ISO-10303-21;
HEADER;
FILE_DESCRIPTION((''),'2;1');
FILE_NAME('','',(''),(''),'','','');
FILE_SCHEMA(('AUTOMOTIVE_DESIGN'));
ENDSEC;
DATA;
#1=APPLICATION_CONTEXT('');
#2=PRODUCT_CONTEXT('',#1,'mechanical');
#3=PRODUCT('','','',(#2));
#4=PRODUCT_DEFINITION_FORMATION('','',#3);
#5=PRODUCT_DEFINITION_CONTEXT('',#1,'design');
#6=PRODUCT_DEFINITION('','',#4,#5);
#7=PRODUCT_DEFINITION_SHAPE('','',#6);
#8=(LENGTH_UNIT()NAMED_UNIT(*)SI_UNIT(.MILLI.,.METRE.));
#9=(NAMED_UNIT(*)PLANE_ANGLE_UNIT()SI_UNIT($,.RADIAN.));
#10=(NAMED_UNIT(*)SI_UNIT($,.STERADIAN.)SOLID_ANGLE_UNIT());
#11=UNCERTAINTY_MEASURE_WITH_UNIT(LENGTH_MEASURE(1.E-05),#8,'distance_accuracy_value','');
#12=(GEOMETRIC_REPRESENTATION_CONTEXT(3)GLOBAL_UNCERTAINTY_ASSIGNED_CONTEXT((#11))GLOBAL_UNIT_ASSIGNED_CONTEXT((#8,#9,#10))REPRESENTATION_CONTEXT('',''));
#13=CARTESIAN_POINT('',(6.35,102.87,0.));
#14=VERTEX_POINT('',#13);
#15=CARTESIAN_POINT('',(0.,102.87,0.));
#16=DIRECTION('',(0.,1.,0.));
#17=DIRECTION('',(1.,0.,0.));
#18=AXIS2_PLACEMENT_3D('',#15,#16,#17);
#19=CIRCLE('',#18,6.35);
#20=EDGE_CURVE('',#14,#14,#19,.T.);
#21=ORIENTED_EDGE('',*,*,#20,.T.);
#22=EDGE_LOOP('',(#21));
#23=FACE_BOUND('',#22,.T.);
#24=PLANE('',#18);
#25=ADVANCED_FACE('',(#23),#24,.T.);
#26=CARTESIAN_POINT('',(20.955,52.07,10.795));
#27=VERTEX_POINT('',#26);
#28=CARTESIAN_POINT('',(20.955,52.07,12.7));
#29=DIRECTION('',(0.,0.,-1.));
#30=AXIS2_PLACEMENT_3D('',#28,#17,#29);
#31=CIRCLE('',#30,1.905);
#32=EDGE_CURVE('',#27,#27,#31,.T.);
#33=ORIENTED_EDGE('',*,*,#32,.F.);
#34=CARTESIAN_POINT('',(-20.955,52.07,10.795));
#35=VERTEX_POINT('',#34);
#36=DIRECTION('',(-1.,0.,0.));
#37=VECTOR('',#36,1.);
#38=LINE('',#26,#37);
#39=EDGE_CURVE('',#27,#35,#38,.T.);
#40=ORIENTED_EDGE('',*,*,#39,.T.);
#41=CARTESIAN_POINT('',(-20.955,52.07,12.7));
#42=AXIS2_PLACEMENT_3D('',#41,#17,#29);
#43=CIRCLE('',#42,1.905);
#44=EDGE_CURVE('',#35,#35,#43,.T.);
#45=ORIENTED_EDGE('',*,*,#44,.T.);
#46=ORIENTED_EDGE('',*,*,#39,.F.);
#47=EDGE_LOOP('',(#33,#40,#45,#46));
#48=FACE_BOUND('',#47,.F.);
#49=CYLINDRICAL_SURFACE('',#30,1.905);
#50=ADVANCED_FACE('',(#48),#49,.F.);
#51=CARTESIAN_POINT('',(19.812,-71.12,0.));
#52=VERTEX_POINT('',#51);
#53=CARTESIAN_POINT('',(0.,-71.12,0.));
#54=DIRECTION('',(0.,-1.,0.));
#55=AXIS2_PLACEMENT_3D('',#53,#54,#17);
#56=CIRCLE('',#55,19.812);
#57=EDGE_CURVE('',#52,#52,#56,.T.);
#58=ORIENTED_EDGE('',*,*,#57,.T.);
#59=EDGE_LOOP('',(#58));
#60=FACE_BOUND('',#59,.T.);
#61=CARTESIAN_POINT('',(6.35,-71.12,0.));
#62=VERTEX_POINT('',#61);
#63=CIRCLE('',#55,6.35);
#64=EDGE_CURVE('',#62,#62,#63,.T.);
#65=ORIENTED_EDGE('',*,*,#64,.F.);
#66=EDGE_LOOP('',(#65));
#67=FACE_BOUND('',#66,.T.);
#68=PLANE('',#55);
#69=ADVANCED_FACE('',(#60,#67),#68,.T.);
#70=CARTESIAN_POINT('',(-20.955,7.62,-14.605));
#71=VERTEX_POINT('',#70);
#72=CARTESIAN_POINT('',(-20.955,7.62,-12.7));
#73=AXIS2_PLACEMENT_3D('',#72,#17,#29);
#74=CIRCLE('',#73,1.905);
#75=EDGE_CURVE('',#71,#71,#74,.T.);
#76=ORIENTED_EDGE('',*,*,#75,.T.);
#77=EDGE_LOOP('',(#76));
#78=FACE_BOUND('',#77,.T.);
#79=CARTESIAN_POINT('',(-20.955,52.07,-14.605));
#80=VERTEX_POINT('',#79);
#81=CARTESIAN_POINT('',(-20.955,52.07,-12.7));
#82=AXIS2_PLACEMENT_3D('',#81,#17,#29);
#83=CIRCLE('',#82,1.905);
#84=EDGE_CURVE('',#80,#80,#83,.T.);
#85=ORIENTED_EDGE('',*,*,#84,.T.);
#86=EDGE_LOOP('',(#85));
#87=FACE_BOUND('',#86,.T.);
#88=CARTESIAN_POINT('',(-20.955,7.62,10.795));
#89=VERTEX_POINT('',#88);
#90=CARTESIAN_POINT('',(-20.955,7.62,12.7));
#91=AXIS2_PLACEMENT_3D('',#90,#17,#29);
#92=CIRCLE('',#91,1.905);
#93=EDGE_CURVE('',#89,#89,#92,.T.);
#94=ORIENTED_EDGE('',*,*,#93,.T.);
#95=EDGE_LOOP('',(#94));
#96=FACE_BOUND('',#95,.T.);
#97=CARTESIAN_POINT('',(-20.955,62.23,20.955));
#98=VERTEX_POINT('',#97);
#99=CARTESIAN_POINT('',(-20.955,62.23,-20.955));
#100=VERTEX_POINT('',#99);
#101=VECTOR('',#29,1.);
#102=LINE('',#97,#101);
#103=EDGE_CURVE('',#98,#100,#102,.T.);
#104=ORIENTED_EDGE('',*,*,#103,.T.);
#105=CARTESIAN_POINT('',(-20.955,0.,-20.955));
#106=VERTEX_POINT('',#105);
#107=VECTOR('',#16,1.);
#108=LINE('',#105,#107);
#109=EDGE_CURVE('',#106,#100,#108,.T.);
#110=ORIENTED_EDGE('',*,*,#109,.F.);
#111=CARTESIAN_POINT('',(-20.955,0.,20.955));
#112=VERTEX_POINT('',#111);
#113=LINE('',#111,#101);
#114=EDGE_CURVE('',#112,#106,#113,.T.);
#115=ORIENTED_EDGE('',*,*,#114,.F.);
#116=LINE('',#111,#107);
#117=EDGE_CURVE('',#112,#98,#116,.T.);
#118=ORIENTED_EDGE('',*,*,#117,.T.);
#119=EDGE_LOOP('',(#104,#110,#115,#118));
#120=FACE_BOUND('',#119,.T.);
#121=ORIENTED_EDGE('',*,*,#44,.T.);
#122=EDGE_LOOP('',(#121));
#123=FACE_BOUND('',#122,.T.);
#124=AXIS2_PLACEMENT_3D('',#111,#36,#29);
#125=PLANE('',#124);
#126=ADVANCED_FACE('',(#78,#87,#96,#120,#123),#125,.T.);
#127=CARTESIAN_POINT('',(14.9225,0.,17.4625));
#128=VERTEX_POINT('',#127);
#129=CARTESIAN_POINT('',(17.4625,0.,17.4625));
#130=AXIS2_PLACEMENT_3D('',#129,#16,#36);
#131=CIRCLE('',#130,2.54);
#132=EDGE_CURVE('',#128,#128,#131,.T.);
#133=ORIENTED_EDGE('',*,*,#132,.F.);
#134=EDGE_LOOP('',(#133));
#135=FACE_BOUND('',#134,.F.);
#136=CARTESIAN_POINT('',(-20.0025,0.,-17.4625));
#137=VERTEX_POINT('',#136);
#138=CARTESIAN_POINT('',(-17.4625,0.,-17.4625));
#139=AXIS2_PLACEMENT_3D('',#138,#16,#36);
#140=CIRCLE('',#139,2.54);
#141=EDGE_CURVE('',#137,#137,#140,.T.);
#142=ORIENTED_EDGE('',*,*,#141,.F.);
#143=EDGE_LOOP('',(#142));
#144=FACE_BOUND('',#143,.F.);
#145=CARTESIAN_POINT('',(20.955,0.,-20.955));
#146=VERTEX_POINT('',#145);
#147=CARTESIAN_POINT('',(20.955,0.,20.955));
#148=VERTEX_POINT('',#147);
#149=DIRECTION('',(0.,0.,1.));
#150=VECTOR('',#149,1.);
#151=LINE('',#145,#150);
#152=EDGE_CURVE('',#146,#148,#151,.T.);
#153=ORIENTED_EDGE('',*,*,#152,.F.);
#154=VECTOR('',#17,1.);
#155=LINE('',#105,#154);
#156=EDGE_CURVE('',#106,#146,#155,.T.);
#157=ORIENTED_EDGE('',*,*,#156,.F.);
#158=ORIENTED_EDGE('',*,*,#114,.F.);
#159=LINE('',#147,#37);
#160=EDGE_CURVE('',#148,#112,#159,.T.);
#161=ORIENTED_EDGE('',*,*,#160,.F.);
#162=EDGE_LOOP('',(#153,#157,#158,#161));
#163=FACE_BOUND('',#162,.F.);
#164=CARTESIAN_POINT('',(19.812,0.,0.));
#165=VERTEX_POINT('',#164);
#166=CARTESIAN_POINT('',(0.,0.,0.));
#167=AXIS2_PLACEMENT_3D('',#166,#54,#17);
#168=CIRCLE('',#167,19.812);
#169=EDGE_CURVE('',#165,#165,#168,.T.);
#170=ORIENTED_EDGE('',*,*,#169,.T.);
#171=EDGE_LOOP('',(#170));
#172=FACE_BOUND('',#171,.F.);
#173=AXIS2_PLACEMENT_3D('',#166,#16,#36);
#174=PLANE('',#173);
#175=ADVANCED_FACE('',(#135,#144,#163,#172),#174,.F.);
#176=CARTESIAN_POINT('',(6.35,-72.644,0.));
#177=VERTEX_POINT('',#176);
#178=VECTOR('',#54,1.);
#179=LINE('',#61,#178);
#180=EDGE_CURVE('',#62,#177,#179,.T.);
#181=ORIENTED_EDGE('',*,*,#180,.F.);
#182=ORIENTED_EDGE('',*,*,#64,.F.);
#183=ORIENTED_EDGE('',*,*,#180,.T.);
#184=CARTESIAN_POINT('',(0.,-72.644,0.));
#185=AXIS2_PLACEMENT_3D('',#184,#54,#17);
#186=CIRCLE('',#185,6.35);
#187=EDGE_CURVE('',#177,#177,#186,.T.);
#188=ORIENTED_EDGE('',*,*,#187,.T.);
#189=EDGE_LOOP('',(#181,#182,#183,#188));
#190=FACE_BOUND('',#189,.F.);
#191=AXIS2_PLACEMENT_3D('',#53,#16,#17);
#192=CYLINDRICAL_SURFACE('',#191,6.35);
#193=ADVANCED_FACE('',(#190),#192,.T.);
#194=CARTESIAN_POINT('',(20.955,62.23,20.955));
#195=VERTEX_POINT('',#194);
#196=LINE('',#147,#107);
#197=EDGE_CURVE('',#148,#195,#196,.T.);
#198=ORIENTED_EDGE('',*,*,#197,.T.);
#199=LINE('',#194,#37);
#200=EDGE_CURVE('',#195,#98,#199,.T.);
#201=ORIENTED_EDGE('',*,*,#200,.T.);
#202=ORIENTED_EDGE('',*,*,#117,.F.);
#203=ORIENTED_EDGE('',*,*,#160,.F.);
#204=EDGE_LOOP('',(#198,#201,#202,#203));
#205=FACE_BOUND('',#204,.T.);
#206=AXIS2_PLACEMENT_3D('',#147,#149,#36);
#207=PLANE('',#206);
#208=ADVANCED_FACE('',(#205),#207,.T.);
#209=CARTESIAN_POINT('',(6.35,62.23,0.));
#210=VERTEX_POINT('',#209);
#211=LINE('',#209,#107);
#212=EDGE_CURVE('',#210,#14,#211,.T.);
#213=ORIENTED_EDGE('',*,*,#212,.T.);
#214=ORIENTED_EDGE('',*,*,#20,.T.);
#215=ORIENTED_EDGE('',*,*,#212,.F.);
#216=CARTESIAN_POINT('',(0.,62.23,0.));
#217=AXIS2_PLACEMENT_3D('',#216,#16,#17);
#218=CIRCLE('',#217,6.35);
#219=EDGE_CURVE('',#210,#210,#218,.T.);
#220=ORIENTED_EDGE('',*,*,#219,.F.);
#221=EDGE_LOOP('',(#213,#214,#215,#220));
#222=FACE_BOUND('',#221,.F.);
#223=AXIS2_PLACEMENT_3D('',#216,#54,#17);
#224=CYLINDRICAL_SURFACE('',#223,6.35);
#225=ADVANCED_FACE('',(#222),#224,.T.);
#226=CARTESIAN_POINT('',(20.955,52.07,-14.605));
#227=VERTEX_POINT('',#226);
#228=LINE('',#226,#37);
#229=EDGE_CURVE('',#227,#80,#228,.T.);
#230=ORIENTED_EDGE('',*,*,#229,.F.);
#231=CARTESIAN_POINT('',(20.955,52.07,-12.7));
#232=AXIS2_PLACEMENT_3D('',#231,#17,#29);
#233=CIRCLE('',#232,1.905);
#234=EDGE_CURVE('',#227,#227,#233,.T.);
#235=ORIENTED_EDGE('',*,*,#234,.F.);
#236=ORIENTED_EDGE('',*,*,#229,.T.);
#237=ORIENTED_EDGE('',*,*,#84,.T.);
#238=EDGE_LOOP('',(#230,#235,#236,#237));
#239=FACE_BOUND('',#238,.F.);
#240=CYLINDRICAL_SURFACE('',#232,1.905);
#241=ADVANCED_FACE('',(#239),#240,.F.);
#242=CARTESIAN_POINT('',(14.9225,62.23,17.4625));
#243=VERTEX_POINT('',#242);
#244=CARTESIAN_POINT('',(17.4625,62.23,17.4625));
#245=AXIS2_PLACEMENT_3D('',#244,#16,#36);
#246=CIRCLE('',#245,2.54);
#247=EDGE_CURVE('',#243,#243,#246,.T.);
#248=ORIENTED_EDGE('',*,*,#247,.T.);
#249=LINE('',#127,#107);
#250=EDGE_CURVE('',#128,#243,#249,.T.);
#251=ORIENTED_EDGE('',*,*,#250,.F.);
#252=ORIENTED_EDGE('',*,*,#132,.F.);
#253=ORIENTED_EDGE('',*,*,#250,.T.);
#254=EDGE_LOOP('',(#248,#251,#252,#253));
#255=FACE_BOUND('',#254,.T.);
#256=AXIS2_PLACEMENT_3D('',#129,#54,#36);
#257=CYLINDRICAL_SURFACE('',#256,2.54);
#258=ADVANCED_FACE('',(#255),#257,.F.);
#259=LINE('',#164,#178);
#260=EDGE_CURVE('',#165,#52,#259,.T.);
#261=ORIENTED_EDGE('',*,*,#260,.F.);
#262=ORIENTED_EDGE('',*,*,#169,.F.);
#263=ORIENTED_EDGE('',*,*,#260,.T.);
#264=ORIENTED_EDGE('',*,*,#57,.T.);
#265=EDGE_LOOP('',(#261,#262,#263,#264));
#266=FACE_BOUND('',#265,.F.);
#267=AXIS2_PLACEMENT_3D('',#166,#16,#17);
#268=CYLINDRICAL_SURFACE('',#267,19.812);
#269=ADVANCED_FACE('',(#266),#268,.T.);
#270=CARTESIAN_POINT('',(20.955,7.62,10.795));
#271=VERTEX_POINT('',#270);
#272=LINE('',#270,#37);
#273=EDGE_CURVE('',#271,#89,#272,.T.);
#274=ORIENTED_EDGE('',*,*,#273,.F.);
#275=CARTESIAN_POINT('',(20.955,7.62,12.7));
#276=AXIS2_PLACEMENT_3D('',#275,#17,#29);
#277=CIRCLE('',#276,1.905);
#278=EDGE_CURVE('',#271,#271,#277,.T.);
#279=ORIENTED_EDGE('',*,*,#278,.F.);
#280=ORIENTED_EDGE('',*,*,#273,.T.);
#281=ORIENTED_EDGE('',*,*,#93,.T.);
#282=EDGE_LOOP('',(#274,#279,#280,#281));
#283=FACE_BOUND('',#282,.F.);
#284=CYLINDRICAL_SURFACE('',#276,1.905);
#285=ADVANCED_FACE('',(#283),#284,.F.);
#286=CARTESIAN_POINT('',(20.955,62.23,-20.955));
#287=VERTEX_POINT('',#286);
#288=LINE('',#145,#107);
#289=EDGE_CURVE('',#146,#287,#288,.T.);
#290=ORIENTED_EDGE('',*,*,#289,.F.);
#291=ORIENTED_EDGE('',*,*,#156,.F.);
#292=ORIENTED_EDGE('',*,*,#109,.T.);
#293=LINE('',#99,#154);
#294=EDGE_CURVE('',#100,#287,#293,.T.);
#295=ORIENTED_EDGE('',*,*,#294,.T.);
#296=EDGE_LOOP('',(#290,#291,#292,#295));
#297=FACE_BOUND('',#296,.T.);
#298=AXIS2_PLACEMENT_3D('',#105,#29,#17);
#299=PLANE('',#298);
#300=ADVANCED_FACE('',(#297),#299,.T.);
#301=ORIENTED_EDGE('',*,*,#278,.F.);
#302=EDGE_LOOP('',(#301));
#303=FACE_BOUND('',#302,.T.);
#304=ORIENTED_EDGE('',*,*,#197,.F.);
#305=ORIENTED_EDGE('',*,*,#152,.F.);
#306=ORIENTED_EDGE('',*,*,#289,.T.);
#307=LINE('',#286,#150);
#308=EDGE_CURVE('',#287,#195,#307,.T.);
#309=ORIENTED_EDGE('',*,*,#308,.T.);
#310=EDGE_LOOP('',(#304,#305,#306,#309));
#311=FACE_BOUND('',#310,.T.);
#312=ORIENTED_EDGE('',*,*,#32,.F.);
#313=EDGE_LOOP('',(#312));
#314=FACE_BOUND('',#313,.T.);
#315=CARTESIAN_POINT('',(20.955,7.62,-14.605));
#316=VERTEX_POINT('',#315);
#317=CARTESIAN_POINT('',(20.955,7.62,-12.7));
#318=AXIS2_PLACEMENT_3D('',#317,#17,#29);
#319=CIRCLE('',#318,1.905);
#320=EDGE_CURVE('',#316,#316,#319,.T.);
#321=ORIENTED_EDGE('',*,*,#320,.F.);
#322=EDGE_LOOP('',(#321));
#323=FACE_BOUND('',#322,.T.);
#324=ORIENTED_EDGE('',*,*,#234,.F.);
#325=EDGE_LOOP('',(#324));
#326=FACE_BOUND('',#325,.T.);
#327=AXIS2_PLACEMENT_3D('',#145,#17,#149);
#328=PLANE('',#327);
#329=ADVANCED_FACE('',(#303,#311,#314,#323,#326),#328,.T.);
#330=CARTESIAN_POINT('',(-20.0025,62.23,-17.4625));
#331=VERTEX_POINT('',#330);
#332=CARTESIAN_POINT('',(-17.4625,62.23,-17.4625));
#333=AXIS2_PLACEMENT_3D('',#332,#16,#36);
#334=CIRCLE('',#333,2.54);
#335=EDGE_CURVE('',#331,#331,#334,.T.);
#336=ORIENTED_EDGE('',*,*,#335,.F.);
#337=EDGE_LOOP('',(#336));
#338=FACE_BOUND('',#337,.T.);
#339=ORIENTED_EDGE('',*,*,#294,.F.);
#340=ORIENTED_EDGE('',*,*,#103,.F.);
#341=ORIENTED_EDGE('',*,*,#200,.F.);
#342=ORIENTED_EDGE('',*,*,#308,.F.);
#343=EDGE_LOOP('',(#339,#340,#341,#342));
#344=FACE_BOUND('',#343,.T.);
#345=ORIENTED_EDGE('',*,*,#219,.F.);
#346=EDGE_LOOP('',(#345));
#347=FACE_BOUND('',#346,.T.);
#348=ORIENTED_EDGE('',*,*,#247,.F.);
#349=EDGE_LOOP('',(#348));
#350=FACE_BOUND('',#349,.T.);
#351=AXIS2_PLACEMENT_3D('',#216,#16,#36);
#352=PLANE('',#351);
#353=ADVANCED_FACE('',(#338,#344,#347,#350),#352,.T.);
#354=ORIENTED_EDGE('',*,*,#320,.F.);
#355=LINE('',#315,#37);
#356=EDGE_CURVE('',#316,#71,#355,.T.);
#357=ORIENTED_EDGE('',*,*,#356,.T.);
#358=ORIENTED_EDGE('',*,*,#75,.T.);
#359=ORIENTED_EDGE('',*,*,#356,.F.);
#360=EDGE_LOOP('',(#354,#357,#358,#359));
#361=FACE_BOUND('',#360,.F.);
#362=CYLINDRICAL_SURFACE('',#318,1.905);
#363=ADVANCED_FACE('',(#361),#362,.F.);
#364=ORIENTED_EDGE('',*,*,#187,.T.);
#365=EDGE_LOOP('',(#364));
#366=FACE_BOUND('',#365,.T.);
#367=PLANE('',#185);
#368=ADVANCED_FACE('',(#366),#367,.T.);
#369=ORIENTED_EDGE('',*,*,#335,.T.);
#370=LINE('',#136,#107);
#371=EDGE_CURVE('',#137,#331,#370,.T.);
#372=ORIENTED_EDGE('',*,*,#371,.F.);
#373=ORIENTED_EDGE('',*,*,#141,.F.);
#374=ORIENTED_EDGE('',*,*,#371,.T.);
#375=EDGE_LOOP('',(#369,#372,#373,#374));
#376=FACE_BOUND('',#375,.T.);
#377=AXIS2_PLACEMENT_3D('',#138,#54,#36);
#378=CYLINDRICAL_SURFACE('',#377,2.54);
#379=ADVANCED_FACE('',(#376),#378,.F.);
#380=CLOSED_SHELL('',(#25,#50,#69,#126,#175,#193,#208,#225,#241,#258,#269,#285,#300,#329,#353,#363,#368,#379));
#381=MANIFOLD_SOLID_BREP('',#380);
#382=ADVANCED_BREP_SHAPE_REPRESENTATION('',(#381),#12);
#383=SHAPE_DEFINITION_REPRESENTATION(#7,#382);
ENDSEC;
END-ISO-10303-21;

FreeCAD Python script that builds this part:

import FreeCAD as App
import Part
import Sketcher
from FreeCAD import Vector
Q = App.Units.Quantity


def add_polygon(sketch, points):
    """Adds a closed chain of lines whose ends are joined by coincident constraints."""
    first, n = sketch.GeometryCount, len(points)
    for a, b in zip(points, points[1:] + points[:1]):
        sketch.addGeometry(Part.LineSegment(App.Vector(*a, 0), App.Vector(*b, 0)), False)
    for i in range(n):
        sketch.addConstraint(Sketcher.Constraint("Coincident", first + i, 2, first + (i + 1) % n, 1))

doc = App.newDocument("Part")
body = doc.addObject("PartDesign::Body", "Body")

# Sketch on XZ plane
sketch1 = body.newObject("Sketcher::SketchObject", "Sketch")
sketch1.AttachmentSupport = (doc.getObject("XZ_Plane"), [""])
sketch1.MapMode = "FlatFace"
add_polygon(sketch1, [(-21, 21), (21, 21), (21, -21), (-21, -21)])  # lines 0-3
sketch1.addGeometry(Part.Circle(Vector(-17.5, -17.5, 0), Vector(0, 0, 1), 2.5), False)  # 4
sketch1.addGeometry(Part.Circle(Vector(17.5, 17.5, 0), Vector(0, 0, 1), 2.5), False)  # 5
sketch1.addConstraint([
    Sketcher.Constraint("Horizontal", 0),
    Sketcher.Constraint("Vertical", 1),
    Sketcher.Constraint("Horizontal", 2),
    Sketcher.Constraint("Vertical", 3),
    Sketcher.Constraint("Equal", 4, 5),
    Sketcher.Constraint("Symmetric", 4, 3, 5, 3, -1, 1),
    Sketcher.Constraint("Symmetric", 0, 2, 2, 2, -1, 1),
    Sketcher.Constraint("Equal", 2, 1),
    Sketcher.Constraint("Diameter", 4, Q("0.2 in")),
    Sketcher.Constraint("DistanceX", 0, 1, 0, 2, Q("1.65 in")),
    Sketcher.Constraint("DistanceX", 4, 3, 5, 3, Q("1.375 in")),
    Sketcher.Constraint("DistanceY", 4, 3, 5, 3, Q("1.375 in")),
])
pad1 = body.newObject("PartDesign::Pad", "Pad")
pad1.Profile = sketch1
pad1.Length = Q("2.45 in")
pad1.Reversed = True

# Sketch on XZ plane
sketch2 = body.newObject("Sketcher::SketchObject", "Sketch001")
sketch2.AttachmentSupport = (doc.getObject("XZ_Plane"), [""])
sketch2.MapMode = "FlatFace"
sketch2.addGeometry(Part.Circle(Vector(0, 0, 0), Vector(0, 0, 1), 20), False)
sketch2.addConstraint([
    Sketcher.Constraint("Coincident", 0, 3, -1, 1),
    Sketcher.Constraint("Diameter", 0, Q("1.56 in")),
])
pad2 = body.newObject("PartDesign::Pad", "Pad001")
pad2.Profile = sketch2
pad2.Length = Q("2.8 in")

# Sketch on XZ plane
sketch3 = body.newObject("Sketcher::SketchObject", "Sketch002")
sketch3.AttachmentSupport = (doc.getObject("XZ_Plane"), [""])
sketch3.MapMode = "FlatFace"
sketch3.AttachmentOffset = App.Placement(Vector(0, 0, 2.8 * 25.4), App.Rotation())
sketch3.addGeometry(Part.Circle(Vector(0, 0, 0), Vector(0, 0, 1), 6), False)
sketch3.addConstraint([
    Sketcher.Constraint("Coincident", 0, 3, -1, 1),
    Sketcher.Constraint("Diameter", 0, Q("0.5 in")),
])
pad3 = body.newObject("PartDesign::Pad", "Pad002")
pad3.Profile = sketch3
pad3.Length = Q("0.06 in")

# Sketch on XZ plane
sketch4 = body.newObject("Sketcher::SketchObject", "Sketch003")
sketch4.AttachmentSupport = (doc.getObject("XZ_Plane"), [""])
sketch4.MapMode = "FlatFace"
sketch4.AttachmentOffset = App.Placement(Vector(0, 0, -2.45 * 25.4), App.Rotation())
sketch4.addGeometry(Part.Circle(Vector(0, 0, 0), Vector(0, 0, 1), 6), False)
sketch4.addConstraint([
    Sketcher.Constraint("Coincident", 0, 3, -1, 1),
    Sketcher.Constraint("Diameter", 0, Q("0.5 in")),
])
pad4 = body.newObject("PartDesign::Pad", "Pad003")
pad4.Profile = sketch4
pad4.Length = Q("1.6 in")
pad4.Reversed = True

# Sketch on YZ plane
sketch5 = body.newObject("Sketcher::SketchObject", "Sketch004")
sketch5.AttachmentSupport = (doc.getObject("YZ_Plane"), [""])
sketch5.MapMode = "FlatFace"
sketch5.AttachmentOffset = App.Placement(Vector(0, 0, 0.825 * 25.4), App.Rotation())
sketch5.addGeometry([
    Part.Circle(Vector(52.1, 12.7, 0), Vector(0, 0, 1), 1.9),
    Part.Circle(Vector(52.1, -12.7, 0), Vector(0, 0, 1), 1.9),
    Part.Circle(Vector(7.6, -12.7, 0), Vector(0, 0, 1), 1.9),
    Part.Circle(Vector(7.6, 12.7, 0), Vector(0, 0, 1), 1.9),
], False)
sketch5.addConstraint([
    Sketcher.Constraint("Equal", 0, 1),
    Sketcher.Constraint("Equal", 1, 2),
    Sketcher.Constraint("Equal", 2, 3),
    Sketcher.Constraint("Symmetric", 0, 3, 1, 3, -1),
    Sketcher.Constraint("Symmetric", 2, 3, 3, 3, -1),
    Sketcher.Constraint("Horizontal", 1, 3, 2, 3),
    Sketcher.Constraint("Diameter", 0, Q("0.15 in")),
    Sketcher.Constraint("DistanceY", 1, 3, 0, 3, Q("1 in")),
    Sketcher.Constraint("DistanceX", 2, 3, 1, 3, Q("1.75 in")),
    Sketcher.Constraint("DistanceX", -1, 1, 2, 3, Q("0.3 in")),
])
pocket1 = body.newObject("PartDesign::Pocket", "Pocket")
pocket1.Profile = sketch5
pocket1.Type = "ThroughAll"

doc.recompute()
